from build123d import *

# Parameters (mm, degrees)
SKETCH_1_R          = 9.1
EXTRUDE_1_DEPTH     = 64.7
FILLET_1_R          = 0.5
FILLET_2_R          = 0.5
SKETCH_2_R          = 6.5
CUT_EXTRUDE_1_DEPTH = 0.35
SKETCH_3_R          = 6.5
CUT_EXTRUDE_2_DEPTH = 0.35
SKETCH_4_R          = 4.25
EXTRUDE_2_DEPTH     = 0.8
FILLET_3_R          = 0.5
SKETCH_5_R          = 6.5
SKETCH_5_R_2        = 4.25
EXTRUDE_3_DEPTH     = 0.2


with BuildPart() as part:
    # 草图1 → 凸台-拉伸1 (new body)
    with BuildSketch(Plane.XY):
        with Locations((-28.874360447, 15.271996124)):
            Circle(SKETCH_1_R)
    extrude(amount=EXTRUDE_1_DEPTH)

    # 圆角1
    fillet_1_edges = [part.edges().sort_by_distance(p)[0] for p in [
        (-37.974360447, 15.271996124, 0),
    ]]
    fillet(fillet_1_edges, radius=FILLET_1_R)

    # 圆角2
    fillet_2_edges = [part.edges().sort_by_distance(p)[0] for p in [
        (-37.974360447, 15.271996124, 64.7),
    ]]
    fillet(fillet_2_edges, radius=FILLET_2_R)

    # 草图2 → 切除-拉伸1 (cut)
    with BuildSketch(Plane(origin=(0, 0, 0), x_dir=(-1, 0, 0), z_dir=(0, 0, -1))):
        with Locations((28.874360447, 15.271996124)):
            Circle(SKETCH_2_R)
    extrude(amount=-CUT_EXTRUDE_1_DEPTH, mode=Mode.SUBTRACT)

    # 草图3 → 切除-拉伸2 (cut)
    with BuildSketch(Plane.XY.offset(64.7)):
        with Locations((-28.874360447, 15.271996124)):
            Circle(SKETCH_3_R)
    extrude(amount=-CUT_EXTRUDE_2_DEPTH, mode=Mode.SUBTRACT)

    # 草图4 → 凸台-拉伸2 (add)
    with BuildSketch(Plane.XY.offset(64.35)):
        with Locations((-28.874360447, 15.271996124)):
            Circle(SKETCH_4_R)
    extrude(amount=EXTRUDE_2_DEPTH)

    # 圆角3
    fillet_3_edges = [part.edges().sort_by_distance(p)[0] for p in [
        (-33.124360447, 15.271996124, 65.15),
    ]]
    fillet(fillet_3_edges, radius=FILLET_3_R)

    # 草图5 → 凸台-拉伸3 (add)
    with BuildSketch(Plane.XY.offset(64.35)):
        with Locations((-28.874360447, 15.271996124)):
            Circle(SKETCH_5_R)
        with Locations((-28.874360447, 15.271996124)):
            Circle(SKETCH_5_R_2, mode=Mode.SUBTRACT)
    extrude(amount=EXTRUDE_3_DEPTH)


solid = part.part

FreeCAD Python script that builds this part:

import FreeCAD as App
import Part
import Sketcher
from FreeCAD import Vector


def edges_at(feature, points):
    """Names of the edges that pass closest to the given points."""
    edges = feature.Shape.Edges
    near = lambda p: min(range(len(edges)), key=lambda i: edges[i].distToShape(Part.Vertex(*p))[0])
    return sorted({f"Edge{near(p) + 1}" for p in points})

doc = App.newDocument("Part")
body = doc.addObject("PartDesign::Body", "Body")

# Sketch on XY plane
sketch1 = body.newObject("Sketcher::SketchObject", "Sketch")
sketch1.AttachmentSupport = (doc.getObject("XY_Plane"), [""])
sketch1.MapMode = "FlatFace"
sketch1.addGeometry(Part.Circle(Vector(-29, 15, 0), Vector(0, 0, 1), 9), False)
sketch1.addConstraint(Sketcher.Constraint("Diameter", 0, 18.2))
sketch1.addConstraint(Sketcher.Constraint("DistanceX", 0, 3, -1, 1, 28.87436))
sketch1.addConstraint(Sketcher.Constraint("DistanceY", -1, 1, 0, 3, 15.271996))
pad1 = body.newObject("PartDesign::Pad", "Pad")
pad1.Profile = sketch1
pad1.Length = 64.7
doc.recompute()

fillet = body.newObject("PartDesign::Fillet", "Fillet")
fillet.Base = (pad1, edges_at(pad1, [(-37.974, 15.272, 0)]))
fillet.Radius = 0.5
doc.recompute()

fillet2 = body.newObject("PartDesign::Fillet", "Fillet001")
fillet2.Base = (fillet, edges_at(fillet, [(-37.974, 15.272, 64.7)]))
fillet2.Radius = 0.5

# Sketch on XY plane
sketch2 = body.newObject("Sketcher::SketchObject", "Sketch001")
sketch2.AttachmentSupport = (doc.getObject("XY_Plane"), [""])
sketch2.MapMode = "FlatFace"
sketch2.addGeometry(Part.Circle(Vector(-29, 15, 0), Vector(0, 0, 1), 6), False)
sketch2.addConstraint(Sketcher.Constraint("Diameter", 0, 13.0))
sketch2.addConstraint(Sketcher.Constraint("DistanceX", 0, 3, -1, 1, 28.87436))
sketch2.addConstraint(Sketcher.Constraint("DistanceY", -1, 1, 0, 3, 15.271996))
pocket1 = body.newObject("PartDesign::Pocket", "Pocket")
pocket1.Profile = sketch2
pocket1.Length = 0.35
pocket1.Reversed = True

# Sketch on XY plane
sketch3 = body.newObject("Sketcher::SketchObject", "Sketch002")
sketch3.AttachmentSupport = (doc.getObject("XY_Plane"), [""])
sketch3.MapMode = "FlatFace"
sketch3.AttachmentOffset = App.Placement(Vector(0, 0, 64.7), App.Rotation())
sketch3.addGeometry(Part.Circle(Vector(-29, 15, 0), Vector(0, 0, 1), 6), False)
sketch3.addConstraint(Sketcher.Constraint("Diameter", 0, 13.0))
sketch3.addConstraint(Sketcher.Constraint("DistanceX", 0, 3, -1, 1, 28.87436))
sketch3.addConstraint(Sketcher.Constraint("DistanceY", -1, 1, 0, 3, 15.271996))
pocket2 = body.newObject("PartDesign::Pocket", "Pocket001")
pocket2.Profile = sketch3
pocket2.Length = 0.35

# Sketch on XY plane
sketch4 = body.newObject("Sketcher::SketchObject", "Sketch003")
sketch4.AttachmentSupport = (doc.getObject("XY_Plane"), [""])
sketch4.MapMode = "FlatFace"
sketch4.AttachmentOffset = App.Placement(Vector(0, 0, 64.35), App.Rotation())
sketch4.addGeometry(Part.Circle(Vector(-28.9, 15.3, 0), Vector(0, 0, 1), 4.2), False)
sketch4.addConstraint(Sketcher.Constraint("Diameter", 0, 8.5))
sketch4.addConstraint(Sketcher.Constraint("DistanceX", 0, 3, -1, 1, 28.87436))
sketch4.addConstraint(Sketcher.Constraint("DistanceY", -1, 1, 0, 3, 15.271996))
pad2 = body.newObject("PartDesign::Pad", "Pad001")
pad2.Profile = sketch4
pad2.Length = 0.8
doc.recompute()

fillet3 = body.newObject("PartDesign::Fillet", "Fillet002")
fillet3.Base = (pad2, edges_at(pad2, [(-33.124, 15.272, 65.15)]))
fillet3.Radius = 0.5

# Sketch on XY plane
sketch5 = body.newObject("Sketcher::SketchObject", "Sketch004")
sketch5.AttachmentSupport = (doc.getObject("XY_Plane"), [""])
sketch5.MapMode = "FlatFace"
sketch5.AttachmentOffset = App.Placement(Vector(0, 0, 64.35), App.Rotation())
sketch5.addGeometry(Part.Circle(Vector(-28.9, 15.3, 0), Vector(0, 0, 1), 6.5), False)
sketch5.addGeometry(Part.Circle(Vector(-28.9, 15.3, 0), Vector(0, 0, 1), 4.2), False)
sketch5.addConstraint(Sketcher.Constraint("Coincident", 1, 3, 0, 3))
sketch5.addConstraint(Sketcher.Constraint("Diameter", 0, 13.0))
sketch5.addConstraint(Sketcher.Constraint("Diameter", 1, 8.5))
sketch5.addConstraint(Sketcher.Constraint("DistanceX", 0, 3, -1, 1, 28.87436))
sketch5.addConstraint(Sketcher.Constraint("DistanceY", -1, 1, 0, 3, 15.271996))
pad3 = body.newObject("PartDesign::Pad", "Pad002")
pad3.Profile = sketch5
pad3.Length = 0.2

doc.recompute()
